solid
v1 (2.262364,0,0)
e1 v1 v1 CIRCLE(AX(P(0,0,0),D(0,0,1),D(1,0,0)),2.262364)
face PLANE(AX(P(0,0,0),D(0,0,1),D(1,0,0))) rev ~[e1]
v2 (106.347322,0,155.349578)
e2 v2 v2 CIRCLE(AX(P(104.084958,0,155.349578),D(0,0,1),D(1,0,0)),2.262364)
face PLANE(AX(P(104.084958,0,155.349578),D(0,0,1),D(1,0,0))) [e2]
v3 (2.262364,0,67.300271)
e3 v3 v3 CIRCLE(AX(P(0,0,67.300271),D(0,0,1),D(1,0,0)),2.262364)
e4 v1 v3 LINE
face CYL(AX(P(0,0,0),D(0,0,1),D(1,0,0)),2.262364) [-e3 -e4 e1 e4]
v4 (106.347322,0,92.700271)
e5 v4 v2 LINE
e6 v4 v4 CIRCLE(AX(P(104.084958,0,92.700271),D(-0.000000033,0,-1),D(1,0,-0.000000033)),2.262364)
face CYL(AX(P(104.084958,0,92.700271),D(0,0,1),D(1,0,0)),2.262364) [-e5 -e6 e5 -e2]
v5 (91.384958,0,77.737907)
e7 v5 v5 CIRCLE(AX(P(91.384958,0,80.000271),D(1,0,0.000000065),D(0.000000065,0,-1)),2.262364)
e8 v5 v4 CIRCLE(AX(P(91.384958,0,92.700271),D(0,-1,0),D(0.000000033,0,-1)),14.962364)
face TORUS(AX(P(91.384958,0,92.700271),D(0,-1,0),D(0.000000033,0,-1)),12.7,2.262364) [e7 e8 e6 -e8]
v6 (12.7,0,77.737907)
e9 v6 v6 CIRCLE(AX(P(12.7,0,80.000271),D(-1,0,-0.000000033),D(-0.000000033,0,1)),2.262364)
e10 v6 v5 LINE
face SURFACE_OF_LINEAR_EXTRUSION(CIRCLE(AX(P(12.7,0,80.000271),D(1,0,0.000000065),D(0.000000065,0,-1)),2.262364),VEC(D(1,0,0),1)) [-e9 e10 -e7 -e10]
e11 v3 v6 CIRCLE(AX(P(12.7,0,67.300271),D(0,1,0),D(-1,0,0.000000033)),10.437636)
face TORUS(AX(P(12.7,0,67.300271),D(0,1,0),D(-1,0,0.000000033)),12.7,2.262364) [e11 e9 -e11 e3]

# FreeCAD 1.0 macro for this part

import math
import FreeCAD as App
import Part
import Sketcher
from FreeCAD import Vector
Q = App.Units.Quantity

doc = App.newDocument("Part")
body = doc.addObject("PartDesign::Body", "Body")

# Sketch on XY plane
sketch1 = body.newObject("Sketcher::SketchObject", "Sketch")
sketch1.AttachmentSupport = (doc.getObject("XY_Plane"), [""])
sketch1.MapMode = "FlatFace"
sketch1.addGeometry(Part.Circle(Vector(0, 0, 0), Vector(0, 0, 1), 2.3), False)
sketch1.addConstraint(Sketcher.Constraint("Coincident", 0, 3, -1, 1))
sketch1.addConstraint(Sketcher.Constraint("Diameter", 0, 4.524728))

# Sketch on XZ plane
sketch2 = body.newObject("Sketcher::SketchObject", "Sketch001")
sketch2.AttachmentSupport = (doc.getObject("XZ_Plane"), [""])
sketch2.MapMode = "FlatFace"
sketch2.addGeometry(Part.LineSegment(Vector(0, 0, 0), Vector(0, 67, 0)), False)
sketch2.addGeometry(Part.ArcOfCircle(Part.Circle(Vector(13, 67, 0), Vector(0, 0, 1), 13), math.radians(90), math.radians(180)), False)
sketch2.addGeometry(Part.LineSegment(Vector(13, 80, 0), Vector(91, 80, 0)), False)
sketch2.addGeometry(Part.ArcOfCircle(Part.Circle(Vector(91, 93, 0), Vector(0, 0, 1), 13), math.radians(-90), math.radians(0)), False)
sketch2.addGeometry(Part.LineSegment(Vector(104, 93, 0), Vector(104, 155, 0)), False)
sketch2.addConstraint(Sketcher.Constraint("Tangent", 0, 2, 1, 2))
sketch2.addConstraint(Sketcher.Constraint("Tangent", 1, 1, 2, 1))
sketch2.addConstraint(Sketcher.Constraint("Tangent", 2, 2, 3, 1))
sketch2.addConstraint(Sketcher.Constraint("Tangent", 3, 2, 4, 1))
sketch2.addConstraint(Sketcher.Constraint("Vertical", 0))
sketch2.addConstraint(Sketcher.Constraint("Horizontal", 2))
sketch2.addConstraint(Sketcher.Constraint("Vertical", 4))
sketch2.addConstraint(Sketcher.Constraint("Coincident", 0, 1, -1, 1))
sketch2.addConstraint(Sketcher.Constraint("Equal", 1, 3))
sketch2.addConstraint(Sketcher.Constraint("Radius", 1, Q("0.5 in")))
sketch2.addConstraint(Sketcher.Constraint("DistanceY", 0, 1, 0, 2, 67.300271))
sketch2.addConstraint(Sketcher.Constraint("DistanceX", 2, 1, 2, 2, 78.684958))
sketch2.addConstraint(Sketcher.Constraint("DistanceY", 4, 1, 4, 2, 62.649307))
doc.recompute()

additivepipe = body.newObject("PartDesign::AdditivePipe", "AdditivePipe")
additivepipe.Profile = sketch1
additivepipe.Spine = (sketch2, ["Edge1", "Edge2", "Edge3", "Edge4", "Edge5"])

doc.recompute()
